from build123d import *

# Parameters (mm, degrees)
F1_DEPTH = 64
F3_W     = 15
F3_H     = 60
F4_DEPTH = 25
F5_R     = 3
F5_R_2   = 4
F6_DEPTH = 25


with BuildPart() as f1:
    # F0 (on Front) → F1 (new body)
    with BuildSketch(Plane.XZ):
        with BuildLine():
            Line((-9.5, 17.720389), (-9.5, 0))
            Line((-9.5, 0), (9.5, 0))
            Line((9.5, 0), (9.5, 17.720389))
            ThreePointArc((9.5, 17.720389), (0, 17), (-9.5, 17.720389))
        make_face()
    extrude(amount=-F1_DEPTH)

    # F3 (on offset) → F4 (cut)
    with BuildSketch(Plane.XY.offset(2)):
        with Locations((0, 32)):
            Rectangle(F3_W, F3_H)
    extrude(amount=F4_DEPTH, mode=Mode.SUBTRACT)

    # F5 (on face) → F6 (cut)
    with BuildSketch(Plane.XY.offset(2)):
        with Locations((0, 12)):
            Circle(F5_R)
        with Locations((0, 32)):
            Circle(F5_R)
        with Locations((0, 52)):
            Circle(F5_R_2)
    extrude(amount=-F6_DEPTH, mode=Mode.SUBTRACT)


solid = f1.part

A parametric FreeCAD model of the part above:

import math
import FreeCAD as App
import Part
import Sketcher

V = App.Vector
Q = App.Units.Quantity


def add_polygon(sketch, points):
    """Adds a closed chain of lines whose ends are joined by coincident constraints."""
    first, n = sketch.GeometryCount, len(points)
    for a, b in zip(points, points[1:] + points[:1]):
        sketch.addGeometry(Part.LineSegment(App.Vector(*a, 0), App.Vector(*b, 0)), False)
    for i in range(n):
        sketch.addConstraint(Sketcher.Constraint("Coincident", first + i, 2, first + (i + 1) % n, 1))

doc = App.newDocument("Part")
body = doc.addObject("PartDesign::Body", "Body")

sketch1 = doc.addObject("Sketcher::SketchObject", "Sketch")
body.addObject(sketch1)
sketch1.AttachmentSupport = (doc.XZ_Plane, [""])
sketch1.MapMode = "FlatFace"
sketch1.addGeometry([
    Part.LineSegment(V(-9.5, 17.720389, 0), V(-9.5, 0, 0)),
    Part.LineSegment(V(-9.5, 0, 0), V(9.5, 0, 0)),
    Part.LineSegment(V(9.5, 0, 0), V(9.5, 17.720389, 0)),
    Part.ArcOfCircle(Part.Circle(V(0, 79.999963, 0), V(0, 0, 1), 62.999963), math.radians(-98.672928), math.radians(-81.327072)),
], False)
sketch1.addConstraint([
    Sketcher.Constraint("Coincident", 0, 2, 1, 1),
    Sketcher.Constraint("Coincident", 1, 2, 2, 1),
    Sketcher.Constraint("Coincident", 2, 2, 3, 2),
    Sketcher.Constraint("Coincident", 3, 1, 0, 1),
    Sketcher.Constraint("Vertical", 0),
    Sketcher.Constraint("Horizontal", 1),
    Sketcher.Constraint("Vertical", 2),
    Sketcher.Constraint("Symmetric", 0, 2, 1, 2, -1, 1),
    Sketcher.Constraint("PointOnObject", 3, 3, -2),
    Sketcher.Constraint("DistanceX", 1, 1, 1, 2, Q("19 mm")),
    Sketcher.Constraint("Radius", 3, Q("62.999963 mm")),
    Sketcher.Constraint("DistanceY", 0, 2, 0, 1, Q("17.720389 mm")),
])
pad1 = doc.addObject("PartDesign::Pad", "Pad")
body.addObject(pad1)
pad1.Profile = sketch1
pad1.Length = 64
pad1.Reversed = True

sketch2 = doc.addObject("Sketcher::SketchObject", "Sketch001")
body.addObject(sketch2)
sketch2.AttachmentSupport = (doc.XY_Plane, [""])
sketch2.MapMode = "FlatFace"
sketch2.AttachmentOffset = App.Placement(V(0, 0, 2), App.Rotation())
add_polygon(sketch2, [(-7.5, 62), (-7.5, 2), (7.5, 2), (7.5, 62)])
sketch2.addConstraint([
    Sketcher.Constraint("Vertical", 0),
    Sketcher.Constraint("Horizontal", 1),
    Sketcher.Constraint("Vertical", 2),
    Sketcher.Constraint("Horizontal", 3),
    Sketcher.Constraint("DistanceX", 1, 1, 1, 2, Q("15 mm")),
    Sketcher.Constraint("DistanceY", 0, 2, 0, 1, Q("60 mm")),
    Sketcher.Constraint("DistanceY", -1, 1, 0, 2, Q("2 mm")),
    Sketcher.Constraint("DistanceX", 0, 2, -1, 1, Q("7.5 mm")),
])
pocket1 = doc.addObject("PartDesign::Pocket", "Pocket")
body.addObject(pocket1)
pocket1.Profile = sketch2
pocket1.Length = 25
pocket1.Reversed = True

sketch3 = doc.addObject("Sketcher::SketchObject", "Sketch002")
body.addObject(sketch3)
sketch3.AttachmentSupport = (doc.XY_Plane, [""])
sketch3.MapMode = "FlatFace"
sketch3.AttachmentOffset = App.Placement(V(0, 0, 2), App.Rotation())
sketch3.addGeometry([
    Part.Circle(V(0, 12, 0), V(0, 0, 1), 3),
    Part.Circle(V(0, 32, 0), V(0, 0, 1), 3),
    Part.Circle(V(0, 52, 0), V(0, 0, 1), 4),
], False)
sketch3.addConstraint([
    Sketcher.Constraint("Equal", 0, 1),
    Sketcher.Constraint("PointOnObject", 0, 3, -2),
    Sketcher.Constraint("PointOnObject", 1, 3, -2),
    Sketcher.Constraint("PointOnObject", 2, 3, -2),
    Sketcher.Constraint("Diameter", 0, Q("6 mm")),
    Sketcher.Constraint("Diameter", 2, Q("8 mm")),
    Sketcher.Constraint("DistanceY", -1, 1, 0, 3, Q("12 mm")),
    Sketcher.Constraint("DistanceY", -1, 1, 1, 3, Q("32 mm")),
    Sketcher.Constraint("DistanceY", -1, 1, 2, 3, Q("52 mm")),
])
pocket2 = doc.addObject("PartDesign::Pocket", "Pocket001")
body.addObject(pocket2)
pocket2.Profile = sketch3
pocket2.Length = 25

doc.recompute()
